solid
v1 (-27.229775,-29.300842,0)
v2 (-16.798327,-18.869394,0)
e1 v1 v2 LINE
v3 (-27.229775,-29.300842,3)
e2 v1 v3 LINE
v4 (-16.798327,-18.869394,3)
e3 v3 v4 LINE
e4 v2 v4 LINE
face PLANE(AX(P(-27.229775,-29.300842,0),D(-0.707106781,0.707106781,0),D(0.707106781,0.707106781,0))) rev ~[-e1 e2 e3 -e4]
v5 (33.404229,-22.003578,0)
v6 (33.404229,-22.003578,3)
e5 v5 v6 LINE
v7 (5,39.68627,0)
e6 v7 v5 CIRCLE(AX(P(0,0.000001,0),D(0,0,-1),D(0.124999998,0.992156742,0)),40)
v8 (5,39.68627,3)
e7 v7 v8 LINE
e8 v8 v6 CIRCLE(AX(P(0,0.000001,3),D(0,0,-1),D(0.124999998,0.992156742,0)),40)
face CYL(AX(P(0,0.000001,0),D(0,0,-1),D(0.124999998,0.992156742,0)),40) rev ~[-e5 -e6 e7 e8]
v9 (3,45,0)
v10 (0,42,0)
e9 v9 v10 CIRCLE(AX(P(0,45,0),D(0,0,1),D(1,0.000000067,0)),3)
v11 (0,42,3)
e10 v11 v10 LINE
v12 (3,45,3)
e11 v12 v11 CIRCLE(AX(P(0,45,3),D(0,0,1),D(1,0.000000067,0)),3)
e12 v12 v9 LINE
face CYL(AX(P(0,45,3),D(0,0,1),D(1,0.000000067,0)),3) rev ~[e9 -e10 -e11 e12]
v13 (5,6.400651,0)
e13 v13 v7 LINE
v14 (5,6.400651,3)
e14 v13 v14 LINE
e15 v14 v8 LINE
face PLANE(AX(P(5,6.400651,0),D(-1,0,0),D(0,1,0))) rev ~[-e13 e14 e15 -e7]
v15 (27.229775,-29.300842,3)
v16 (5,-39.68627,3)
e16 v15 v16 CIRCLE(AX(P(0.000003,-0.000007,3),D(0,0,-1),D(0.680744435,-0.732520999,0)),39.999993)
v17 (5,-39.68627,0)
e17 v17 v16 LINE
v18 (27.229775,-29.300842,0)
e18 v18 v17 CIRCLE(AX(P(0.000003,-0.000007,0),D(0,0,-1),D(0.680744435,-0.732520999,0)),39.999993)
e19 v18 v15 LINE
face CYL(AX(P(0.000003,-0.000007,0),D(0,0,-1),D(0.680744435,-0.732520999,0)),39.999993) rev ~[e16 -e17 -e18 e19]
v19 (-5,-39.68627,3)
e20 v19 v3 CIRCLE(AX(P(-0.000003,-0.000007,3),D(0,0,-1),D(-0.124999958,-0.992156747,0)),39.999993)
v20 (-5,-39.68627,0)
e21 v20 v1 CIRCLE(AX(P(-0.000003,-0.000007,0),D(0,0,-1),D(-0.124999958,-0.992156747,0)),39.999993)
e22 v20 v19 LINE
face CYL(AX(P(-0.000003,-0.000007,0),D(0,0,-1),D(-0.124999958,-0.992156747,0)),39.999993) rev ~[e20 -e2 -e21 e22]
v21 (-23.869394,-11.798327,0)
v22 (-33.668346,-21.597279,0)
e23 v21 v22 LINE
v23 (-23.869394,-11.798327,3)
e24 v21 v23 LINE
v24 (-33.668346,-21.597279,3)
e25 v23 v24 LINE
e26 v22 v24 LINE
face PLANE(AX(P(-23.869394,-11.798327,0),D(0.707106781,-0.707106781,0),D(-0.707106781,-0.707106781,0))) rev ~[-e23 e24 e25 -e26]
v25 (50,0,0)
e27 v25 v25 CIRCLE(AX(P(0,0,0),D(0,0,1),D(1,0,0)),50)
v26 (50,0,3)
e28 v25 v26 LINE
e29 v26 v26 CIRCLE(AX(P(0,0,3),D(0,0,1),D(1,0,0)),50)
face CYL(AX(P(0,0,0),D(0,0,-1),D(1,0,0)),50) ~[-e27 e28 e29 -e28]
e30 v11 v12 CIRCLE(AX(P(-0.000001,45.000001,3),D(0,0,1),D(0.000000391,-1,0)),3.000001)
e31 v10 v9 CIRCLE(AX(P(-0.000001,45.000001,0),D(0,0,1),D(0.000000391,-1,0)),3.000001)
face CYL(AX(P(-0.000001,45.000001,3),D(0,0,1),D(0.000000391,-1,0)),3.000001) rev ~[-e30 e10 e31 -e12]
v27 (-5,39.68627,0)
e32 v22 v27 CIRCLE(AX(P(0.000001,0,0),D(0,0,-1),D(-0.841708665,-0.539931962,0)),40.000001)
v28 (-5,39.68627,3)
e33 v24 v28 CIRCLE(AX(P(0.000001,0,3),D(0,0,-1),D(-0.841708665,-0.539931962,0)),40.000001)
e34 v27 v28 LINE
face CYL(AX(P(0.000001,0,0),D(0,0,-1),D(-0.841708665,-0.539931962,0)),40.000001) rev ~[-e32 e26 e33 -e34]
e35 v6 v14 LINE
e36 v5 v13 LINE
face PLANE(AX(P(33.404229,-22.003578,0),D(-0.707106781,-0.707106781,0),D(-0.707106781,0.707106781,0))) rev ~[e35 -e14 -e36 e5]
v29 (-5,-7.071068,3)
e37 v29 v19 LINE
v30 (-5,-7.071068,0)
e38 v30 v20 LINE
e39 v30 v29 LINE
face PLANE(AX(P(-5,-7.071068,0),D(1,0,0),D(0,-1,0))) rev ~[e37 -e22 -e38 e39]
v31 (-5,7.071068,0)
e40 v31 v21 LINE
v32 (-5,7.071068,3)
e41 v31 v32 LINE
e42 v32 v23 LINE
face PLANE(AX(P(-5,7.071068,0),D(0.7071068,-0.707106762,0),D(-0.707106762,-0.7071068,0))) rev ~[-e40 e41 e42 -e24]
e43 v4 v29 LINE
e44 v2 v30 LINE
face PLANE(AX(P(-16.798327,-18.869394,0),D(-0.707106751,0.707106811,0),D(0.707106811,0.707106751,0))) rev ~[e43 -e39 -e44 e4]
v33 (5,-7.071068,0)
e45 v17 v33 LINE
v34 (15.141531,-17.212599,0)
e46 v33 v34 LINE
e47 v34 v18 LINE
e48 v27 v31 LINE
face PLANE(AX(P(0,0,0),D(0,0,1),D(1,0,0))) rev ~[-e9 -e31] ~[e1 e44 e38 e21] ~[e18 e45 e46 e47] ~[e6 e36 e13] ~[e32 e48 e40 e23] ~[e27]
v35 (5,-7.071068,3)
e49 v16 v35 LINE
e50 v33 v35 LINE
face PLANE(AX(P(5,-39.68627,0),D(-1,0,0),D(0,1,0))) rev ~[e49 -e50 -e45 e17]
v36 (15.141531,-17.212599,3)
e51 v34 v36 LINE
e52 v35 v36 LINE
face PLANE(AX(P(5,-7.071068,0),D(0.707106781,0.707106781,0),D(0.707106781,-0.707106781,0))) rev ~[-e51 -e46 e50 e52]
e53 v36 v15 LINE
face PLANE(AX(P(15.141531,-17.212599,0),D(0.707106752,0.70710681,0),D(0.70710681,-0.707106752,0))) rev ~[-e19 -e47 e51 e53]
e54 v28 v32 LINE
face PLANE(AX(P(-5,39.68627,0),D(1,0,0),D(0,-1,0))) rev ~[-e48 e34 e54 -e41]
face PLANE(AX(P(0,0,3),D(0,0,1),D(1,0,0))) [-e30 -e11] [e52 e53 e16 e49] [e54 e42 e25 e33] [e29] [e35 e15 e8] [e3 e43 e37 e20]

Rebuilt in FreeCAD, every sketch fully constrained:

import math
import FreeCAD as App
import Part
import Sketcher
from FreeCAD import Vector
Q = App.Units.Quantity

doc = App.newDocument("Part")
body = doc.addObject("PartDesign::Body", "Body")

sketch1 = body.newObject("Sketcher::SketchObject", "Sketch")
sketch1.AttachmentSupport = (doc.getObject("XY_Plane"), [""])
sketch1.MapMode = "FlatFace"
sketch1.addGeometry(Part.Circle(Vector(0, 0, 0), Vector(0, 0, 1), 50), False)
sketch1.addGeometry(Part.LineSegment(Vector(-27, -29, 0), Vector(-17, -19, 0)), False)
sketch1.addGeometry(Part.LineSegment(Vector(-17, -19, 0), Vector(-5, -7, 0)), False)
sketch1.addGeometry(Part.LineSegment(Vector(-5, -7, 0), Vector(-5, -40, 0)), False)
sketch1.addGeometry(Part.ArcOfCircle(Part.Circle(Vector(0, 0, 0), Vector(0, 0, 1), 40), math.radians(-133), math.radians(-97)), False)
sketch1.addGeometry(Part.ArcOfCircle(Part.Circle(Vector(0, 0, 0), Vector(0, 0, 1), 40), math.radians(-83), math.radians(-47)), False)
sketch1.addGeometry(Part.LineSegment(Vector(5, -40, 0), Vector(5, -7, 0)), False)
sketch1.addGeometry(Part.LineSegment(Vector(5, -7, 0), Vector(15, -17, 0)), False)
sketch1.addGeometry(Part.LineSegment(Vector(15, -17, 0), Vector(27, -29, 0)), False)
sketch1.addGeometry(Part.LineSegment(Vector(-24, -12, 0), Vector(-34, -22, 0)), False)
sketch1.addGeometry(Part.ArcOfCircle(Part.Circle(Vector(0, 0, 0), Vector(0, 0, 1), 40), math.radians(97), math.radians(213)), False)
sketch1.addGeometry(Part.LineSegment(Vector(-5, 40, 0), Vector(-5, 7, 0)), False)
sketch1.addGeometry(Part.LineSegment(Vector(-5, 7, 0), Vector(-24, -12, 0)), False)
sketch1.addGeometry(Part.LineSegment(Vector(33, -22, 0), Vector(5, 6, 0)), False)
sketch1.addGeometry(Part.LineSegment(Vector(5, 6, 0), Vector(5, 40, 0)), False)
sketch1.addGeometry(Part.ArcOfCircle(Part.Circle(Vector(0, 0, 0), Vector(0, 0, 1), 40), math.radians(-33), math.radians(83)), False)
sketch1.addConstraint(Sketcher.Constraint("Coincident", 1, 2, 2, 1))
sketch1.addConstraint(Sketcher.Constraint("Coincident", 2, 2, 3, 1))
sketch1.addConstraint(Sketcher.Constraint("Coincident", 3, 2, 4, 2))
sketch1.addConstraint(Sketcher.Constraint("Coincident", 4, 1, 1, 1))
sketch1.addConstraint(Sketcher.Constraint("Coincident", 5, 1, 6, 1))
sketch1.addConstraint(Sketcher.Constraint("Coincident", 6, 2, 7, 1))
sketch1.addConstraint(Sketcher.Constraint("Coincident", 7, 2, 8, 1))
sketch1.addConstraint(Sketcher.Constraint("Coincident", 8, 2, 5, 2))
sketch1.addConstraint(Sketcher.Constraint("Coincident", 9, 2, 10, 2))
sketch1.addConstraint(Sketcher.Constraint("Coincident", 10, 1, 11, 1))
sketch1.addConstraint(Sketcher.Constraint("Coincident", 11, 2, 12, 1))
sketch1.addConstraint(Sketcher.Constraint("Coincident", 12, 2, 9, 1))
sketch1.addConstraint(Sketcher.Constraint("Coincident", 13, 2, 14, 1))
sketch1.addConstraint(Sketcher.Constraint("Coincident", 14, 2, 15, 2))
sketch1.addConstraint(Sketcher.Constraint("Coincident", 15, 1, 13, 1))
sketch1.addConstraint(Sketcher.Constraint("Vertical", 3))
sketch1.addConstraint(Sketcher.Constraint("Vertical", 6))
sketch1.addConstraint(Sketcher.Constraint("Vertical", 11))
sketch1.addConstraint(Sketcher.Constraint("Vertical", 14))
sketch1.addConstraint(Sketcher.Constraint("Coincident", 0, 3, -1, 1))
sketch1.addConstraint(Sketcher.Constraint("Coincident", 4, 3, -1, 1))
sketch1.addConstraint(Sketcher.Constraint("Coincident", 5, 3, -1, 1))
sketch1.addConstraint(Sketcher.Constraint("Coincident", 10, 3, -1, 1))
sketch1.addConstraint(Sketcher.Constraint("Coincident", 15, 3, -1, 1))
sketch1.addConstraint(Sketcher.Constraint("Equal", 4, 5))
sketch1.addConstraint(Sketcher.Constraint("Equal", 10, 15))
sketch1.addConstraint(Sketcher.Constraint("Symmetric", 5, 1, 10, 1, -1, 1))
sketch1.addConstraint(Sketcher.Constraint("Symmetric", 2, 2, 6, 2, -2))
sketch1.addConstraint(Sketcher.Constraint("Parallel", 1, 2))
sketch1.addConstraint(Sketcher.Constraint("Perpendicular", 2, 7))
sketch1.addConstraint(Sketcher.Constraint("Parallel", 7, 8))
sketch1.addConstraint(Sketcher.Constraint("Perpendicular", 8, 9))
sketch1.addConstraint(Sketcher.Constraint("Parallel", 9, 12))
sketch1.addConstraint(Sketcher.Constraint("Perpendicular", 12, 13))
sketch1.addConstraint(Sketcher.Constraint("Horizontal", 4, 1, 8, 2))
sketch1.addConstraint(Sketcher.Constraint("Horizontal", 10, 1, 14, 2))
sketch1.addConstraint(Sketcher.Constraint("Equal", 6, 11))
sketch1.addConstraint(Sketcher.Constraint("Diameter", 0, Q("100 mm")))
sketch1.addConstraint(Sketcher.Constraint("Radius", 10, Q("40.000001 mm")))
sketch1.addConstraint(Sketcher.Constraint("DistanceX", 2, 2, -1, 1, Q("5 mm")))
sketch1.addConstraint(Sketcher.Constraint("DistanceY", 3, 2, 3, 1, Q("32.615202 mm")))
sketch1.addConstraint(Sketcher.Constraint("DistanceY", 14, 1, 14, 2, Q("33.285619 mm")))
sketch1.addConstraint(Sketcher.Constraint("DistanceY", 7, 2, -1, 1, Q("17.212599 mm")))
sketch1.addConstraint(Sketcher.Constraint("Distance", 9, Q("13.857811 mm")))
sketch1.addConstraint(Sketcher.Constraint("DistanceX", 1, 2, 5, 3, Q("16.79833 mm")))
pad1 = body.newObject("PartDesign::Pad", "Pad")
pad1.Profile = sketch1
pad1.Length = 3

sketch2 = body.newObject("Sketcher::SketchObject", "Sketch001")
sketch2.AttachmentSupport = (doc.getObject("XY_Plane"), [""])
sketch2.MapMode = "FlatFace"
sketch2.addGeometry(Part.Circle(Vector(0, 0, 0), Vector(0, 0, 1), 50), False)
sketch2.addGeometry(Part.LineSegment(Vector(-27, -29, 0), Vector(-17, -19, 0)), False)
sketch2.addGeometry(Part.LineSegment(Vector(-17, -19, 0), Vector(-5, -7, 0)), False)
sketch2.addGeometry(Part.LineSegment(Vector(-5, -7, 0), Vector(-5, -40, 0)), False)
sketch2.addGeometry(Part.ArcOfCircle(Part.Circle(Vector(0, 0, 0), Vector(0, 0, 1), 40), math.radians(-133), math.radians(-97)), False)
sketch2.addGeometry(Part.ArcOfCircle(Part.Circle(Vector(0, 0, 0), Vector(0, 0, 1), 40), math.radians(-83), math.radians(-47)), False)
sketch2.addGeometry(Part.LineSegment(Vector(5, -40, 0), Vector(5, -7, 0)), False)
sketch2.addGeometry(Part.LineSegment(Vector(5, -7, 0), Vector(15, -17, 0)), False)
sketch2.addGeometry(Part.LineSegment(Vector(15, -17, 0), Vector(27, -29, 0)), False)
sketch2.addGeometry(Part.LineSegment(Vector(-24, -12, 0), Vector(-34, -22, 0)), False)
sketch2.addGeometry(Part.ArcOfCircle(Part.Circle(Vector(0, 0, 0), Vector(0, 0, 1), 40), math.radians(97), math.radians(213)), False)
sketch2.addGeometry(Part.LineSegment(Vector(-5, 40, 0), Vector(-5, 7, 0)), False)
sketch2.addGeometry(Part.LineSegment(Vector(-5, 7, 0), Vector(-24, -12, 0)), False)
sketch2.addGeometry(Part.LineSegment(Vector(33, -22, 0), Vector(5, 6, 0)), False)
sketch2.addGeometry(Part.LineSegment(Vector(5, 6, 0), Vector(5, 40, 0)), False)
sketch2.addGeometry(Part.ArcOfCircle(Part.Circle(Vector(0, 0, 0), Vector(0, 0, 1), 40), math.radians(-33), math.radians(83)), False)
sketch2.addConstraint(Sketcher.Constraint("Coincident", 1, 2, 2, 1))
sketch2.addConstraint(Sketcher.Constraint("Coincident", 2, 2, 3, 1))
sketch2.addConstraint(Sketcher.Constraint("Coincident", 3, 2, 4, 2))
sketch2.addConstraint(Sketcher.Constraint("Coincident", 4, 1, 1, 1))
sketch2.addConstraint(Sketcher.Constraint("Coincident", 5, 1, 6, 1))
sketch2.addConstraint(Sketcher.Constraint("Coincident", 6, 2, 7, 1))
sketch2.addConstraint(Sketcher.Constraint("Coincident", 7, 2, 8, 1))
sketch2.addConstraint(Sketcher.Constraint("Coincident", 8, 2, 5, 2))
sketch2.addConstraint(Sketcher.Constraint("Coincident", 9, 2, 10, 2))
sketch2.addConstraint(Sketcher.Constraint("Coincident", 10, 1, 11, 1))
sketch2.addConstraint(Sketcher.Constraint("Coincident", 11, 2, 12, 1))
sketch2.addConstraint(Sketcher.Constraint("Coincident", 12, 2, 9, 1))
sketch2.addConstraint(Sketcher.Constraint("Coincident", 13, 2, 14, 1))
sketch2.addConstraint(Sketcher.Constraint("Coincident", 14, 2, 15, 2))
sketch2.addConstraint(Sketcher.Constraint("Coincident", 15, 1, 13, 1))
sketch2.addConstraint(Sketcher.Constraint("Vertical", 3))
sketch2.addConstraint(Sketcher.Constraint("Vertical", 6))
sketch2.addConstraint(Sketcher.Constraint("Vertical", 11))
sketch2.addConstraint(Sketcher.Constraint("Vertical", 14))
sketch2.addConstraint(Sketcher.Constraint("Coincident", 0, 3, -1, 1))
sketch2.addConstraint(Sketcher.Constraint("Coincident", 4, 3, -1, 1))
sketch2.addConstraint(Sketcher.Constraint("Coincident", 5, 3, -1, 1))
sketch2.addConstraint(Sketcher.Constraint("Coincident", 10, 3, -1, 1))
sketch2.addConstraint(Sketcher.Constraint("Coincident", 15, 3, -1, 1))
sketch2.addConstraint(Sketcher.Constraint("Equal", 4, 5))
sketch2.addConstraint(Sketcher.Constraint("Equal", 10, 15))
sketch2.addConstraint(Sketcher.Constraint("Symmetric", 5, 1, 10, 1, -1, 1))
sketch2.addConstraint(Sketcher.Constraint("Symmetric", 2, 2, 6, 2, -2))
sketch2.addConstraint(Sketcher.Constraint("Parallel", 1, 2))
sketch2.addConstraint(Sketcher.Constraint("Perpendicular", 2, 7))
sketch2.addConstraint(Sketcher.Constraint("Parallel", 7, 8))
sketch2.addConstraint(Sketcher.Constraint("Perpendicular", 8, 9))
sketch2.addConstraint(Sketcher.Constraint("Parallel", 9, 12))
sketch2.addConstraint(Sketcher.Constraint("Perpendicular", 12, 13))
sketch2.addConstraint(Sketcher.Constraint("Horizontal", 4, 1, 8, 2))
sketch2.addConstraint(Sketcher.Constraint("Horizontal", 10, 1, 14, 2))
sketch2.addConstraint(Sketcher.Constraint("Equal", 6, 11))
sketch2.addConstraint(Sketcher.Constraint("Diameter", 0, Q("100 mm")))
sketch2.addConstraint(Sketcher.Constraint("Radius", 10, Q("40.000001 mm")))
sketch2.addConstraint(Sketcher.Constraint("DistanceX", 2, 2, -1, 1, Q("5 mm")))
sketch2.addConstraint(Sketcher.Constraint("DistanceY", 3, 2, 3, 1, Q("32.615202 mm")))
sketch2.addConstraint(Sketcher.Constraint("DistanceY", 14, 1, 14, 2, Q("33.285619 mm")))
sketch2.addConstraint(Sketcher.Constraint("DistanceY", 7, 2, -1, 1, Q("17.212599 mm")))
sketch2.addConstraint(Sketcher.Constraint("Distance", 9, Q("13.857811 mm")))
sketch2.addConstraint(Sketcher.Constraint("DistanceX", 1, 2, 5, 3, Q("16.79833 mm")))
pad2 = body.newObject("PartDesign::Pad", "Pad001")
pad2.Profile = sketch2
pad2.Length = 3

sketch3 = body.newObject("Sketcher::SketchObject", "Sketch002")
sketch3.AttachmentSupport = (doc.getObject("XY_Plane"), [""])
sketch3.MapMode = "FlatFace"
sketch3.AttachmentOffset = App.Placement(Vector(0, 0, 3), App.Rotation())
sketch3.addGeometry(Part.ArcOfCircle(Part.Circle(Vector(0, 45, 0), Vector(0, 0, 1), 3), math.radians(-90), math.radians(0)), False)
sketch3.addGeometry(Part.ArcOfCircle(Part.Circle(Vector(0, 45, 0), Vector(0, 0, 1), 3), math.radians(0), math.radians(270)), False)
sketch3.addConstraint(Sketcher.Constraint("Tangent", 0, 1, 1, 2))
sketch3.addConstraint(Sketcher.Constraint("Coincident", 1, 1, 0, 2))
sketch3.addConstraint(Sketcher.Constraint("PointOnObject", 0, 3, -2))
sketch3.addConstraint(Sketcher.Constraint("PointOnObject", 0, 1, -2))
sketch3.addConstraint(Sketcher.Constraint("Horizontal", 0, 3, 1, 1))
sketch3.addConstraint(Sketcher.Constraint("Radius", 0, Q("3.000001 mm")))
sketch3.addConstraint(Sketcher.Constraint("DistanceY", -1, 1, 0, 3, Q("45.000001 mm")))
pocket1 = body.newObject("PartDesign::Pocket", "Pocket")
pocket1.Profile = sketch3
pocket1.Length = 25

doc.recompute()
